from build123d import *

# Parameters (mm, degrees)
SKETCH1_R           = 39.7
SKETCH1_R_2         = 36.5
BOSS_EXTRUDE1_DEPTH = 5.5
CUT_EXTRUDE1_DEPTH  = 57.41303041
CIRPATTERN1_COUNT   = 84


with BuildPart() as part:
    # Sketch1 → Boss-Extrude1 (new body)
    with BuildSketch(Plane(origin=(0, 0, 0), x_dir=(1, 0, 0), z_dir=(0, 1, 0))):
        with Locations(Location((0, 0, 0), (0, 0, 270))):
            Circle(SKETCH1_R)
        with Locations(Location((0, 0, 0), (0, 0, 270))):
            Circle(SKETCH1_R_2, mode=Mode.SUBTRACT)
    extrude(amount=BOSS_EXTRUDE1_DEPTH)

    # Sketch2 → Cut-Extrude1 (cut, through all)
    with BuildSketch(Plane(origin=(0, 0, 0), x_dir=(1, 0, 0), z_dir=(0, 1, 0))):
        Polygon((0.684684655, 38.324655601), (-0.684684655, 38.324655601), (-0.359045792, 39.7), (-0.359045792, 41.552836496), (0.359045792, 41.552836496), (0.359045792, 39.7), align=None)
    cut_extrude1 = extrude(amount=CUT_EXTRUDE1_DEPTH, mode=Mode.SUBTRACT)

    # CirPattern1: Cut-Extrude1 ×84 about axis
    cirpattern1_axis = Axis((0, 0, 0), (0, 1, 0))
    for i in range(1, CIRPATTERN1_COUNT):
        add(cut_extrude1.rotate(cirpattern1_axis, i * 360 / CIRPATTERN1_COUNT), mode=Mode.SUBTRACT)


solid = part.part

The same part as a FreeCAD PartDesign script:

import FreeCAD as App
import Part
import Sketcher

V = App.Vector
Q = App.Units.Quantity

doc = App.newDocument("Part")
params = doc.addObject("Spreadsheet::Sheet", "Params")
for row, (alias, value) in enumerate([
    ("sketch1_diameter", "73 mm"),
    ("sketch1_diameter2", "79.4 mm"),
    ("pad1_length", "5.5 mm"),
], start=1):
    params.set(f"A{row}", alias)
    params.set(f"B{row}", "=" + value)
    params.setAlias(f"B{row}", alias)

body = doc.addObject("PartDesign::Body", "Body")

# Sketch on XZ plane
sketch1 = body.newObject("Sketcher::SketchObject", "Sketch")
sketch1.AttachmentSupport = (doc.getObject("XZ_Plane"), [""])
sketch1.MapMode = "FlatFace"
sketch1.addGeometry(Part.Circle(V(0, 0, 0), V(0, 0, 1), 40), False)
sketch1.addGeometry(Part.Circle(V(0, 0, 0), V(0, 0, 1), 36), False)
sketch1.addConstraint(Sketcher.Constraint("Coincident", 0, 3, -1, 1))
sketch1.addConstraint(Sketcher.Constraint("Coincident", 1, 3, -1, 1))
sketch1.addConstraint(Sketcher.Constraint("Diameter", 1, Q("73 mm")))
sketch1.addConstraint(Sketcher.Constraint("Diameter", 0, Q("79.4 mm")))
sketch1.setExpression("Constraints[2]", "Params.sketch1_diameter")
sketch1.setExpression("Constraints[3]", "Params.sketch1_diameter2")
pad1 = body.newObject("PartDesign::Pad", "Pad")
pad1.Profile = sketch1
pad1.setExpression("Length", "Params.pad1_length")
pad1.Reversed = True

# Sketch on XZ plane
sketch2 = body.newObject("Sketcher::SketchObject", "Sketch001")
sketch2.AttachmentSupport = (doc.getObject("XZ_Plane"), [""])
sketch2.MapMode = "FlatFace"
sketch2.addGeometry(Part.LineSegment(V(-0.7, -38.3, 0), V(0.7, -38.3, 0)), False)
sketch2.addGeometry(Part.LineSegment(V(0.7, -38.3, 0), V(0.4, -39.7, 0)), False)
sketch2.addGeometry(Part.LineSegment(V(0.4, -39.7, 0), V(0.4, -41.6, 0)), False)
sketch2.addGeometry(Part.LineSegment(V(0.4, -41.6, 0), V(-0.4, -41.6, 0)), False)
sketch2.addGeometry(Part.LineSegment(V(-0.4, -41.6, 0), V(-0.4, -39.7, 0)), False)
sketch2.addGeometry(Part.LineSegment(V(-0.4, -39.7, 0), V(-0.7, -38.3, 0)), False)
sketch2.addConstraint(Sketcher.Constraint("Coincident", 0, 2, 1, 1))
sketch2.addConstraint(Sketcher.Constraint("Coincident", 1, 2, 2, 1))
sketch2.addConstraint(Sketcher.Constraint("Coincident", 2, 2, 3, 1))
sketch2.addConstraint(Sketcher.Constraint("Coincident", 3, 2, 4, 1))
sketch2.addConstraint(Sketcher.Constraint("Coincident", 4, 2, 5, 1))
sketch2.addConstraint(Sketcher.Constraint("Coincident", 5, 2, 0, 1))
sketch2.addConstraint(Sketcher.Constraint("Horizontal", 0))
sketch2.addConstraint(Sketcher.Constraint("Vertical", 2))
sketch2.addConstraint(Sketcher.Constraint("Horizontal", 3))
sketch2.addConstraint(Sketcher.Constraint("Vertical", 4))
sketch2.addConstraint(Sketcher.Constraint("Symmetric", 1, 2, 4, 2, -2))
sketch2.addConstraint(Sketcher.Constraint("Equal", 1, 5))
sketch2.addConstraint(Sketcher.Constraint("DistanceY", 1, 2, -1, 1, Q("39.7 mm")))
sketch2.addConstraint(Sketcher.Constraint("DistanceX", 0, 1, 0, 2, Q("1.369369 mm")))
sketch2.addConstraint(Sketcher.Constraint("DistanceX", 3, 2, 3, 1, Q("0.718092 mm")))
sketch2.addConstraint(Sketcher.Constraint("Distance", 1, Q("1.413369 mm")))
sketch2.addConstraint(Sketcher.Constraint("DistanceY", 2, 2, 2, 1, Q("1.852836 mm")))
pocket1 = body.newObject("PartDesign::Pocket", "Pocket")
pocket1.Profile = sketch2
pocket1.Type = "ThroughAll"
doc.recompute()

polarpattern = body.newObject("PartDesign::PolarPattern", "PolarPattern")
polarpattern.Originals = [pocket1]
polarpattern.Axis = (doc.getObject("Y_Axis"), [""])
polarpattern.Angle = 360
polarpattern.Occurrences = 84
body.Tip = polarpattern

doc.recompute()
